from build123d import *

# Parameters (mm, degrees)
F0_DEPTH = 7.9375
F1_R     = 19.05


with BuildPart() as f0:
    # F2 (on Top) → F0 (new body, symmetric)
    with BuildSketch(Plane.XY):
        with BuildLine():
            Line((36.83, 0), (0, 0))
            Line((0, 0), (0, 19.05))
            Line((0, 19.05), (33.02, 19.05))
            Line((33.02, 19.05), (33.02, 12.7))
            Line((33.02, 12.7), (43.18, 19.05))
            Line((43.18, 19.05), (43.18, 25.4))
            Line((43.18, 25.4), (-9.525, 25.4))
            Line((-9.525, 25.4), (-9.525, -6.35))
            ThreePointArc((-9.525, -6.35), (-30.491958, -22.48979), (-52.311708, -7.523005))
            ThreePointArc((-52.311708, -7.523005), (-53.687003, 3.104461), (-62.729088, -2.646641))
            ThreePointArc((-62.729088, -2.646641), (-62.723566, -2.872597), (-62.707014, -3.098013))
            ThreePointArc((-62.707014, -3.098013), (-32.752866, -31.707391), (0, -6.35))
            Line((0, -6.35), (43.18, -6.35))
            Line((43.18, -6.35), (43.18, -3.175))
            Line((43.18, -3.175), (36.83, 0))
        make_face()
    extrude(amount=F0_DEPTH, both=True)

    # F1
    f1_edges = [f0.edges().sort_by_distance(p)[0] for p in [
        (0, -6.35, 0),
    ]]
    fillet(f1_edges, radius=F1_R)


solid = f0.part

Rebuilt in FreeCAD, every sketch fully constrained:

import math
import FreeCAD as App
import Part
import Sketcher
from FreeCAD import Vector
Q = App.Units.Quantity


def edges_at(feature, points):
    """Names of the edges that pass closest to the given points."""
    edges = feature.Shape.Edges
    near = lambda p: min(range(len(edges)), key=lambda i: edges[i].distToShape(Part.Vertex(*p))[0])
    return sorted({f"Edge{near(p) + 1}" for p in points})

doc = App.newDocument("Part")
body = doc.addObject("PartDesign::Body", "Body")

# Sketch on XY plane
sketch1 = doc.addObject("Sketcher::SketchObject", "Sketch")
body.addObject(sketch1)
sketch1.AttachmentSupport = (doc.XY_Plane, [""])
sketch1.MapMode = "FlatFace"
sketch1.addGeometry([
    Part.LineSegment(Vector(36.83, 0, 0), Vector(0, 0, 0)),  # 0
    Part.LineSegment(Vector(0, 0, 0), Vector(0, 19.05, 0)),  # 1
    Part.LineSegment(Vector(0, 19.05, 0), Vector(33.02, 19.05, 0)),  # 2
    Part.LineSegment(Vector(33.02, 19.05, 0), Vector(33.02, 12.7, 0)),  # 3
    Part.LineSegment(Vector(33.02, 12.7, 0), Vector(43.18, 19.05, 0)),  # 4
    Part.LineSegment(Vector(43.18, 19.05, 0), Vector(43.18, 25.4, 0)),  # 5
    Part.LineSegment(Vector(43.18, 25.4, 0), Vector(-9.53, 25.4, 0)),  # 6
    Part.LineSegment(Vector(-9.53, 25.4, 0), Vector(-9.53, -6.35, 0)),  # 7
    Part.ArcOfCircle(Part.Circle(Vector(-31.11, 0, 0), Vector(0, 0, 1), 22.5), math.radians(-160), math.radians(-16)),  # 8
    Part.ArcOfCircle(Part.Circle(Vector(-56.38, -2.65, 0), Vector(0, 0, 1), 6.35), math.radians(-50), math.radians(180)),  # 9
    Part.ArcOfCircle(Part.Circle(Vector(-58.1, -2.65, 0), Vector(0, 0, 1), 4.63), math.radians(-180), math.radians(-174.4)),  # 10
    Part.ArcOfCircle(Part.Circle(Vector(-31.11, 0, 0), Vector(0, 0, 1), 31.75), math.radians(-174), math.radians(-12)),  # 11
    Part.LineSegment(Vector(0, -6.35, 0), Vector(43.18, -6.35, 0)),  # 12
    Part.LineSegment(Vector(43.18, -6.35, 0), Vector(43.18, -3.17, 0)),  # 13
    Part.LineSegment(Vector(43.18, -3.17, 0), Vector(36.83, 0, 0)),  # 14
], False)
sketch1.addConstraint([
    Sketcher.Constraint("Coincident", 0, 2, 1, 1),
    Sketcher.Constraint("Coincident", 1, 2, 2, 1),
    Sketcher.Constraint("Coincident", 2, 2, 3, 1),
    Sketcher.Constraint("Coincident", 3, 2, 4, 1),
    Sketcher.Constraint("Coincident", 4, 2, 5, 1),
    Sketcher.Constraint("Coincident", 5, 2, 6, 1),
    Sketcher.Constraint("Coincident", 6, 2, 7, 1),
    Sketcher.Constraint("Coincident", 7, 2, 8, 2),
    Sketcher.Constraint("Coincident", 8, 1, 9, 1),
    Sketcher.Constraint("Tangent", 9, 2, 10, 1),
    Sketcher.Constraint("Tangent", 10, 2, 11, 1),
    Sketcher.Constraint("Coincident", 11, 2, 12, 1),
    Sketcher.Constraint("Coincident", 12, 2, 13, 1),
    Sketcher.Constraint("Coincident", 13, 2, 14, 1),
    Sketcher.Constraint("Coincident", 14, 2, 0, 1),
    Sketcher.Constraint("Horizontal", 0),
    Sketcher.Constraint("Vertical", 1),
    Sketcher.Constraint("Horizontal", 2),
    Sketcher.Constraint("Vertical", 3),
    Sketcher.Constraint("Vertical", 5),
    Sketcher.Constraint("Horizontal", 6),
    Sketcher.Constraint("Vertical", 7),
    Sketcher.Constraint("Horizontal", 12),
    Sketcher.Constraint("Vertical", 13),
    Sketcher.Constraint("Coincident", 0, 2, -1, 1),
    Sketcher.Constraint("Coincident", 11, 3, 8, 3),
    Sketcher.Constraint("PointOnObject", 8, 3, -1),
    Sketcher.Constraint("PointOnObject", 11, 2, -2),
    Sketcher.Constraint("Horizontal", 2, 2, 4, 2),
    Sketcher.Constraint("Horizontal", 7, 2, 11, 2),
    Sketcher.Constraint("Vertical", 5, 2, 12, 2),
    Sketcher.Constraint("Equal", 3, 5),
    Sketcher.Constraint("Radius", 9, Q("0.25 in")),
    Sketcher.Constraint("Radius", 11, Q("1.25 in")),
    Sketcher.Constraint("DistanceX", 2, 1, 2, 2, Q("1.3 in")),
    Sketcher.Constraint("DistanceX", 12, 1, 12, 2, Q("1.7 in")),
    Sketcher.Constraint("DistanceY", -1, 1, 5, 2, Q("1 in")),
    Sketcher.Constraint("DistanceY", 7, 2, 1, 2, Q("1 in")),
    Sketcher.Constraint("DistanceX", 0, 2, 0, 1, Q("1.45 in")),
    Sketcher.Constraint("DistanceY", 1, 1, 1, 2, Q("0.75 in")),
    Sketcher.Constraint("DistanceX", 6, 2, 6, 1, Q("2.075 in")),
    Sketcher.Constraint("DistanceY", 13, 1, 13, 2, Q("0.125 in")),
    Sketcher.Constraint("Radius", 10, Q("4.626053 mm")),
    Sketcher.Constraint("DistanceY", 9, 3, -1, 1, Q("2.646641 mm")),
    Sketcher.Constraint("DistanceY", 9, 2, -1, 1, Q("2.646641 mm")),
])
pad1 = doc.addObject("PartDesign::Pad", "Pad")
body.addObject(pad1)
pad1.Profile = sketch1
pad1.Length = Q("0.625 in")
pad1.Midplane = True
doc.recompute()

fillet = doc.addObject("PartDesign::Fillet", "Fillet")
body.addObject(fillet)
fillet.Base = (pad1, edges_at(pad1, [(0, -6.35, 0)]))
fillet.Radius = Q("0.75 in")

doc.recompute()
